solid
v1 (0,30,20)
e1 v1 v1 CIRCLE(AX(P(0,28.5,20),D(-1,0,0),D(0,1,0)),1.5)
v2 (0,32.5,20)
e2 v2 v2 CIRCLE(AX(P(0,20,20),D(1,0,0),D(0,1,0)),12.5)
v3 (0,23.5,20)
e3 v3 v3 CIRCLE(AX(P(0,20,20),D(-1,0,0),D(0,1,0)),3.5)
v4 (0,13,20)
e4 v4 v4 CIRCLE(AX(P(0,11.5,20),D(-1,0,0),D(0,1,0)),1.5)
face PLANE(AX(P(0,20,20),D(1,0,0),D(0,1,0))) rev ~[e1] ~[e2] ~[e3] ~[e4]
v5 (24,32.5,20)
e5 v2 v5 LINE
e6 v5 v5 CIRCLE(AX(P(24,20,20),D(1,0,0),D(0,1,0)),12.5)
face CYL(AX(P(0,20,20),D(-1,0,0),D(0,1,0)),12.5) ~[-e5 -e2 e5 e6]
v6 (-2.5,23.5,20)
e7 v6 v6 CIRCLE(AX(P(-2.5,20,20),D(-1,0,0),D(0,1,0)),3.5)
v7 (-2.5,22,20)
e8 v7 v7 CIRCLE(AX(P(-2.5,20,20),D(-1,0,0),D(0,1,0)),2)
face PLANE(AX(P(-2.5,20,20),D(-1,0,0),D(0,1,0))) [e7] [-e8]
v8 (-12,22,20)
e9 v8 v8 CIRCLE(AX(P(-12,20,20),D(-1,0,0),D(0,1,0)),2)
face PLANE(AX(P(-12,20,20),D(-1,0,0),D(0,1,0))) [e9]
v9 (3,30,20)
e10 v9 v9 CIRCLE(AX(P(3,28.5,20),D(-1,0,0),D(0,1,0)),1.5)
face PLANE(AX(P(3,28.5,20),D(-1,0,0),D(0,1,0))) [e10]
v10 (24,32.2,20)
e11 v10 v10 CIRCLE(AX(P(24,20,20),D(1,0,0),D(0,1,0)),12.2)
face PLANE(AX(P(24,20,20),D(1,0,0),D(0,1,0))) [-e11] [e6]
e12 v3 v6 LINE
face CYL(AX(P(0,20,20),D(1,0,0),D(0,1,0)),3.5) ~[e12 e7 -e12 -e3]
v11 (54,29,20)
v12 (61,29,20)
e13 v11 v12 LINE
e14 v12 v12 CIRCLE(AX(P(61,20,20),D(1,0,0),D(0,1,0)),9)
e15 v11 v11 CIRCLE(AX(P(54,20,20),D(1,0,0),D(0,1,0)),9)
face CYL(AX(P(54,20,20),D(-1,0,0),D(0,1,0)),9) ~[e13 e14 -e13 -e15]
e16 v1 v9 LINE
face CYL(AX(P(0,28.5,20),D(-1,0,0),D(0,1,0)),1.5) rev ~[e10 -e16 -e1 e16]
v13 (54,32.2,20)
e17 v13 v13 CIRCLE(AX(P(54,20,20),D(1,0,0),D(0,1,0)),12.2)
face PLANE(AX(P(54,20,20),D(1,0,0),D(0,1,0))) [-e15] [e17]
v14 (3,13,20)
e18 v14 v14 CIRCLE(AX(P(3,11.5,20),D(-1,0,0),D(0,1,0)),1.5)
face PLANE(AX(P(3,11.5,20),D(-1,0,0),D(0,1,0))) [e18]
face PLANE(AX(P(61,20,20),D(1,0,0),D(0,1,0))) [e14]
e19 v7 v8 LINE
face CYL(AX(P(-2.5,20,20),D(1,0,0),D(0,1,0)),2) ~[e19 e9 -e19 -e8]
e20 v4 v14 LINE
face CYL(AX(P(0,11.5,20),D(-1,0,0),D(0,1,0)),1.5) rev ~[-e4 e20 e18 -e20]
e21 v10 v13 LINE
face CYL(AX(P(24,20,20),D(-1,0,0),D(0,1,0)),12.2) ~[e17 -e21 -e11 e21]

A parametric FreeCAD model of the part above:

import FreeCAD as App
import Part
import Sketcher

V = App.Vector

doc = App.newDocument("Part")
params = doc.addObject("Spreadsheet::Sheet", "Params")
for row, (alias, value) in enumerate([
    ("sketch1_diameter", "25 mm"),
    ("pad1_length", "24 mm"),
    ("sketch2_diameter", "24.4 mm"),
    ("pad2_length", "30 mm"),
    ("sketch3_diameter", "7 mm"),
    ("pad3_length", "2.5 mm"),
    ("sketch4_diameter", "4 mm"),
    ("pad4_length", "9.5 mm"),
    ("sketch5_diameter", "18 mm"),
    ("pad5_length", "7 mm"),
    ("sketch6_diameter", "3 mm"),
    ("pocket1_length", "3 mm"),
], start=1):
    params.set(f"A{row}", alias)
    params.set(f"B{row}", "=" + value)
    params.setAlias(f"B{row}", alias)

body = doc.addObject("PartDesign::Body", "Body")

sketch1 = body.newObject("Sketcher::SketchObject", "Sketch")
sketch1.AttachmentSupport = (doc.getObject("YZ_Plane"), [""])
sketch1.MapMode = "FlatFace"
sketch1.addGeometry(Part.Circle(V(20, 20, 0), V(0, 0, 1), 12.5), False)
sketch1.addConstraint([
    Sketcher.Constraint("Diameter", 0, 25.0),
    Sketcher.Constraint("DistanceX", -1, 1, 0, 3, 20.0),
    Sketcher.Constraint("DistanceY", -1, 1, 0, 3, 20.0),
])
sketch1.setExpression("Constraints[0]", "Params.sketch1_diameter")
pad1 = body.newObject("PartDesign::Pad", "Pad")
pad1.Profile = sketch1
pad1.setExpression("Length", "Params.pad1_length")

sketch2 = body.newObject("Sketcher::SketchObject", "Sketch001")
sketch2.AttachmentSupport = (doc.getObject("YZ_Plane"), [""])
sketch2.MapMode = "FlatFace"
sketch2.AttachmentOffset = App.Placement(V(0, 0, 24), App.Rotation())
sketch2.addGeometry(Part.Circle(V(20, 20, 0), V(0, 0, 1), 12.2), False)
sketch2.addConstraint([
    Sketcher.Constraint("Diameter", 0, 24.4),
    Sketcher.Constraint("DistanceX", -1, 1, 0, 3, 20.0),
    Sketcher.Constraint("DistanceY", -1, 1, 0, 3, 20.0),
])
sketch2.setExpression("Constraints[0]", "Params.sketch2_diameter")
pad2 = body.newObject("PartDesign::Pad", "Pad001")
pad2.Profile = sketch2
pad2.setExpression("Length", "Params.pad2_length")

sketch3 = body.newObject("Sketcher::SketchObject", "Sketch002")
sketch3.AttachmentSupport = (doc.getObject("YZ_Plane"), [""])
sketch3.MapMode = "FlatFace"
sketch3.addGeometry(Part.Circle(V(20, 20, 0), V(0, 0, 1), 3.5), False)
sketch3.addConstraint([
    Sketcher.Constraint("Diameter", 0, 7.0),
    Sketcher.Constraint("DistanceX", -1, 1, 0, 3, 20.0),
    Sketcher.Constraint("DistanceY", -1, 1, 0, 3, 20.0),
])
sketch3.setExpression("Constraints[0]", "Params.sketch3_diameter")
pad3 = body.newObject("PartDesign::Pad", "Pad002")
pad3.Profile = sketch3
pad3.setExpression("Length", "Params.pad3_length")
pad3.Reversed = True

sketch4 = body.newObject("Sketcher::SketchObject", "Sketch003")
sketch4.AttachmentSupport = (doc.getObject("YZ_Plane"), [""])
sketch4.MapMode = "FlatFace"
sketch4.AttachmentOffset = App.Placement(V(0, 0, -2.5), App.Rotation())
sketch4.addGeometry(Part.Circle(V(20, 20, 0), V(0, 0, 1), 2), False)
sketch4.addConstraint([
    Sketcher.Constraint("Diameter", 0, 4.0),
    Sketcher.Constraint("DistanceX", -1, 1, 0, 3, 20.0),
    Sketcher.Constraint("DistanceY", -1, 1, 0, 3, 20.0),
])
sketch4.setExpression("Constraints[0]", "Params.sketch4_diameter")
pad4 = body.newObject("PartDesign::Pad", "Pad003")
pad4.Profile = sketch4
pad4.setExpression("Length", "Params.pad4_length")
pad4.Reversed = True

sketch5 = body.newObject("Sketcher::SketchObject", "Sketch004")
sketch5.AttachmentSupport = (doc.getObject("YZ_Plane"), [""])
sketch5.MapMode = "FlatFace"
sketch5.AttachmentOffset = App.Placement(V(0, 0, 54), App.Rotation())
sketch5.addGeometry(Part.Circle(V(20, 20, 0), V(0, 0, 1), 9), False)
sketch5.addConstraint([
    Sketcher.Constraint("Diameter", 0, 18.0),
    Sketcher.Constraint("DistanceX", -1, 1, 0, 3, 20.0),
    Sketcher.Constraint("DistanceY", -1, 1, 0, 3, 20.0),
])
sketch5.setExpression("Constraints[0]", "Params.sketch5_diameter")
pad5 = body.newObject("PartDesign::Pad", "Pad004")
pad5.Profile = sketch5
pad5.setExpression("Length", "Params.pad5_length")

sketch6 = body.newObject("Sketcher::SketchObject", "Sketch005")
sketch6.AttachmentSupport = (doc.getObject("YZ_Plane"), [""])
sketch6.MapMode = "FlatFace"
sketch6.addGeometry([
    Part.Circle(V(28.5, 20, 0), V(0, 0, 1), 1.5),
    Part.Circle(V(11.5, 20, 0), V(0, 0, 1), 1.5),
], False)
sketch6.addConstraint([
    Sketcher.Constraint("Equal", 0, 1),
    Sketcher.Constraint("Horizontal", 0, 3, 1, 3),
    Sketcher.Constraint("Diameter", 0, 3.0),
    Sketcher.Constraint("DistanceY", -1, 1, 0, 3, 20.0),
    Sketcher.Constraint("DistanceX", 1, 3, 0, 3, 17.0),
    Sketcher.Constraint("DistanceX", -1, 1, 0, 3, 28.5),
])
sketch6.setExpression("Constraints[2]", "Params.sketch6_diameter")
pocket1 = body.newObject("PartDesign::Pocket", "Pocket")
pocket1.Profile = sketch6
pocket1.setExpression("Length", "Params.pocket1_length")
pocket1.Reversed = True

doc.recompute()
